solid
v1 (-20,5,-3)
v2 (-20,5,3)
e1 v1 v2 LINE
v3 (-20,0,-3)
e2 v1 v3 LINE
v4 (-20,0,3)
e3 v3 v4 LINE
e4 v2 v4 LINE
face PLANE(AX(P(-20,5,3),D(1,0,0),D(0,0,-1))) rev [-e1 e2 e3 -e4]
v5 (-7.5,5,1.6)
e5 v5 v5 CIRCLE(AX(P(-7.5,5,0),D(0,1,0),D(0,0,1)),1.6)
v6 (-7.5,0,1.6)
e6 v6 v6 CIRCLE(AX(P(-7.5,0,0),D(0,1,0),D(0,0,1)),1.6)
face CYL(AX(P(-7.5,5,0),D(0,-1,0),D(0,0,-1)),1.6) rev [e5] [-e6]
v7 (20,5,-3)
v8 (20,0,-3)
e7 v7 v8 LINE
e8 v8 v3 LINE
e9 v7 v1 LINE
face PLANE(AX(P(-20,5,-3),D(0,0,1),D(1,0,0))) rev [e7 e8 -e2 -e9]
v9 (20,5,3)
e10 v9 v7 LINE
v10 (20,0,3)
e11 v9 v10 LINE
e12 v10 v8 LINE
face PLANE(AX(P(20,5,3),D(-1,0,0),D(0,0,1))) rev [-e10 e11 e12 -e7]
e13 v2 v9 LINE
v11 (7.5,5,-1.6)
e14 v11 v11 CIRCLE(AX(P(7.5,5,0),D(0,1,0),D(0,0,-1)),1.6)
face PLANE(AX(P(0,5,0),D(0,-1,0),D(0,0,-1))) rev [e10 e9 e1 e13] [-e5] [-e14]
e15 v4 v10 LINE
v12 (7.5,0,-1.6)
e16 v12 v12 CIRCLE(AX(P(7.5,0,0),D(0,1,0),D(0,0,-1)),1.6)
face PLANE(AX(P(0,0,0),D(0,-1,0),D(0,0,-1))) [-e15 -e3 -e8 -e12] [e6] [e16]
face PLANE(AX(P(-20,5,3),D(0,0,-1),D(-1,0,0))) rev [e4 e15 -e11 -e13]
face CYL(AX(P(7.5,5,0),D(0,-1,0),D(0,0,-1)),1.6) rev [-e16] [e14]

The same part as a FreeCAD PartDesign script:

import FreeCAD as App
import Part
import Sketcher
from FreeCAD import Vector

doc = App.newDocument("Part")
body = doc.addObject("PartDesign::Body", "Body")

# Sketch on XZ plane
sketch1 = body.newObject("Sketcher::SketchObject", "Sketch")
sketch1.AttachmentSupport = (doc.getObject("XZ_Plane"), [""])
sketch1.MapMode = "FlatFace"
sketch1.addGeometry(Part.LineSegment(Vector(-20, -3, 0), Vector(-20, 3, 0)), False)
sketch1.addGeometry(Part.LineSegment(Vector(-20, 3, 0), Vector(20, 3, 0)), False)
sketch1.addGeometry(Part.LineSegment(Vector(20, 3, 0), Vector(20, -3, 0)), False)
sketch1.addGeometry(Part.LineSegment(Vector(20, -3, 0), Vector(-20, -3, 0)), False)
sketch1.addGeometry(Part.Circle(Vector(-7.5, 0, 0), Vector(0, 0, 1), 1.6), False)
sketch1.addGeometry(Part.Circle(Vector(7.5, 0, 0), Vector(0, 0, 1), 1.6), False)
sketch1.addConstraint(Sketcher.Constraint("Coincident", 0, 2, 1, 1))
sketch1.addConstraint(Sketcher.Constraint("Coincident", 1, 2, 2, 1))
sketch1.addConstraint(Sketcher.Constraint("Coincident", 2, 2, 3, 1))
sketch1.addConstraint(Sketcher.Constraint("Coincident", 3, 2, 0, 1))
sketch1.addConstraint(Sketcher.Constraint("Vertical", 0))
sketch1.addConstraint(Sketcher.Constraint("Horizontal", 1))
sketch1.addConstraint(Sketcher.Constraint("Vertical", 2))
sketch1.addConstraint(Sketcher.Constraint("Horizontal", 3))
sketch1.addConstraint(Sketcher.Constraint("Equal", 4, 5))
sketch1.addConstraint(Sketcher.Constraint("Symmetric", 4, 3, 5, 3, -1, 1))
sketch1.addConstraint(Sketcher.Constraint("Symmetric", 0, 2, 2, 2, -1, 1))
sketch1.addConstraint(Sketcher.Constraint("PointOnObject", 4, 3, -1))
sketch1.addConstraint(Sketcher.Constraint("Diameter", 4, 3.2))
sketch1.addConstraint(Sketcher.Constraint("DistanceX", 1, 1, 1, 2, 40.0))
sketch1.addConstraint(Sketcher.Constraint("DistanceY", 0, 1, 0, 2, 6.0))
sketch1.addConstraint(Sketcher.Constraint("DistanceX", 4, 3, 5, 3, 15.0))
pad1 = body.newObject("PartDesign::Pad", "Pad")
pad1.Profile = sketch1
pad1.Length = 5
pad1.Reversed = True

doc.recompute()
